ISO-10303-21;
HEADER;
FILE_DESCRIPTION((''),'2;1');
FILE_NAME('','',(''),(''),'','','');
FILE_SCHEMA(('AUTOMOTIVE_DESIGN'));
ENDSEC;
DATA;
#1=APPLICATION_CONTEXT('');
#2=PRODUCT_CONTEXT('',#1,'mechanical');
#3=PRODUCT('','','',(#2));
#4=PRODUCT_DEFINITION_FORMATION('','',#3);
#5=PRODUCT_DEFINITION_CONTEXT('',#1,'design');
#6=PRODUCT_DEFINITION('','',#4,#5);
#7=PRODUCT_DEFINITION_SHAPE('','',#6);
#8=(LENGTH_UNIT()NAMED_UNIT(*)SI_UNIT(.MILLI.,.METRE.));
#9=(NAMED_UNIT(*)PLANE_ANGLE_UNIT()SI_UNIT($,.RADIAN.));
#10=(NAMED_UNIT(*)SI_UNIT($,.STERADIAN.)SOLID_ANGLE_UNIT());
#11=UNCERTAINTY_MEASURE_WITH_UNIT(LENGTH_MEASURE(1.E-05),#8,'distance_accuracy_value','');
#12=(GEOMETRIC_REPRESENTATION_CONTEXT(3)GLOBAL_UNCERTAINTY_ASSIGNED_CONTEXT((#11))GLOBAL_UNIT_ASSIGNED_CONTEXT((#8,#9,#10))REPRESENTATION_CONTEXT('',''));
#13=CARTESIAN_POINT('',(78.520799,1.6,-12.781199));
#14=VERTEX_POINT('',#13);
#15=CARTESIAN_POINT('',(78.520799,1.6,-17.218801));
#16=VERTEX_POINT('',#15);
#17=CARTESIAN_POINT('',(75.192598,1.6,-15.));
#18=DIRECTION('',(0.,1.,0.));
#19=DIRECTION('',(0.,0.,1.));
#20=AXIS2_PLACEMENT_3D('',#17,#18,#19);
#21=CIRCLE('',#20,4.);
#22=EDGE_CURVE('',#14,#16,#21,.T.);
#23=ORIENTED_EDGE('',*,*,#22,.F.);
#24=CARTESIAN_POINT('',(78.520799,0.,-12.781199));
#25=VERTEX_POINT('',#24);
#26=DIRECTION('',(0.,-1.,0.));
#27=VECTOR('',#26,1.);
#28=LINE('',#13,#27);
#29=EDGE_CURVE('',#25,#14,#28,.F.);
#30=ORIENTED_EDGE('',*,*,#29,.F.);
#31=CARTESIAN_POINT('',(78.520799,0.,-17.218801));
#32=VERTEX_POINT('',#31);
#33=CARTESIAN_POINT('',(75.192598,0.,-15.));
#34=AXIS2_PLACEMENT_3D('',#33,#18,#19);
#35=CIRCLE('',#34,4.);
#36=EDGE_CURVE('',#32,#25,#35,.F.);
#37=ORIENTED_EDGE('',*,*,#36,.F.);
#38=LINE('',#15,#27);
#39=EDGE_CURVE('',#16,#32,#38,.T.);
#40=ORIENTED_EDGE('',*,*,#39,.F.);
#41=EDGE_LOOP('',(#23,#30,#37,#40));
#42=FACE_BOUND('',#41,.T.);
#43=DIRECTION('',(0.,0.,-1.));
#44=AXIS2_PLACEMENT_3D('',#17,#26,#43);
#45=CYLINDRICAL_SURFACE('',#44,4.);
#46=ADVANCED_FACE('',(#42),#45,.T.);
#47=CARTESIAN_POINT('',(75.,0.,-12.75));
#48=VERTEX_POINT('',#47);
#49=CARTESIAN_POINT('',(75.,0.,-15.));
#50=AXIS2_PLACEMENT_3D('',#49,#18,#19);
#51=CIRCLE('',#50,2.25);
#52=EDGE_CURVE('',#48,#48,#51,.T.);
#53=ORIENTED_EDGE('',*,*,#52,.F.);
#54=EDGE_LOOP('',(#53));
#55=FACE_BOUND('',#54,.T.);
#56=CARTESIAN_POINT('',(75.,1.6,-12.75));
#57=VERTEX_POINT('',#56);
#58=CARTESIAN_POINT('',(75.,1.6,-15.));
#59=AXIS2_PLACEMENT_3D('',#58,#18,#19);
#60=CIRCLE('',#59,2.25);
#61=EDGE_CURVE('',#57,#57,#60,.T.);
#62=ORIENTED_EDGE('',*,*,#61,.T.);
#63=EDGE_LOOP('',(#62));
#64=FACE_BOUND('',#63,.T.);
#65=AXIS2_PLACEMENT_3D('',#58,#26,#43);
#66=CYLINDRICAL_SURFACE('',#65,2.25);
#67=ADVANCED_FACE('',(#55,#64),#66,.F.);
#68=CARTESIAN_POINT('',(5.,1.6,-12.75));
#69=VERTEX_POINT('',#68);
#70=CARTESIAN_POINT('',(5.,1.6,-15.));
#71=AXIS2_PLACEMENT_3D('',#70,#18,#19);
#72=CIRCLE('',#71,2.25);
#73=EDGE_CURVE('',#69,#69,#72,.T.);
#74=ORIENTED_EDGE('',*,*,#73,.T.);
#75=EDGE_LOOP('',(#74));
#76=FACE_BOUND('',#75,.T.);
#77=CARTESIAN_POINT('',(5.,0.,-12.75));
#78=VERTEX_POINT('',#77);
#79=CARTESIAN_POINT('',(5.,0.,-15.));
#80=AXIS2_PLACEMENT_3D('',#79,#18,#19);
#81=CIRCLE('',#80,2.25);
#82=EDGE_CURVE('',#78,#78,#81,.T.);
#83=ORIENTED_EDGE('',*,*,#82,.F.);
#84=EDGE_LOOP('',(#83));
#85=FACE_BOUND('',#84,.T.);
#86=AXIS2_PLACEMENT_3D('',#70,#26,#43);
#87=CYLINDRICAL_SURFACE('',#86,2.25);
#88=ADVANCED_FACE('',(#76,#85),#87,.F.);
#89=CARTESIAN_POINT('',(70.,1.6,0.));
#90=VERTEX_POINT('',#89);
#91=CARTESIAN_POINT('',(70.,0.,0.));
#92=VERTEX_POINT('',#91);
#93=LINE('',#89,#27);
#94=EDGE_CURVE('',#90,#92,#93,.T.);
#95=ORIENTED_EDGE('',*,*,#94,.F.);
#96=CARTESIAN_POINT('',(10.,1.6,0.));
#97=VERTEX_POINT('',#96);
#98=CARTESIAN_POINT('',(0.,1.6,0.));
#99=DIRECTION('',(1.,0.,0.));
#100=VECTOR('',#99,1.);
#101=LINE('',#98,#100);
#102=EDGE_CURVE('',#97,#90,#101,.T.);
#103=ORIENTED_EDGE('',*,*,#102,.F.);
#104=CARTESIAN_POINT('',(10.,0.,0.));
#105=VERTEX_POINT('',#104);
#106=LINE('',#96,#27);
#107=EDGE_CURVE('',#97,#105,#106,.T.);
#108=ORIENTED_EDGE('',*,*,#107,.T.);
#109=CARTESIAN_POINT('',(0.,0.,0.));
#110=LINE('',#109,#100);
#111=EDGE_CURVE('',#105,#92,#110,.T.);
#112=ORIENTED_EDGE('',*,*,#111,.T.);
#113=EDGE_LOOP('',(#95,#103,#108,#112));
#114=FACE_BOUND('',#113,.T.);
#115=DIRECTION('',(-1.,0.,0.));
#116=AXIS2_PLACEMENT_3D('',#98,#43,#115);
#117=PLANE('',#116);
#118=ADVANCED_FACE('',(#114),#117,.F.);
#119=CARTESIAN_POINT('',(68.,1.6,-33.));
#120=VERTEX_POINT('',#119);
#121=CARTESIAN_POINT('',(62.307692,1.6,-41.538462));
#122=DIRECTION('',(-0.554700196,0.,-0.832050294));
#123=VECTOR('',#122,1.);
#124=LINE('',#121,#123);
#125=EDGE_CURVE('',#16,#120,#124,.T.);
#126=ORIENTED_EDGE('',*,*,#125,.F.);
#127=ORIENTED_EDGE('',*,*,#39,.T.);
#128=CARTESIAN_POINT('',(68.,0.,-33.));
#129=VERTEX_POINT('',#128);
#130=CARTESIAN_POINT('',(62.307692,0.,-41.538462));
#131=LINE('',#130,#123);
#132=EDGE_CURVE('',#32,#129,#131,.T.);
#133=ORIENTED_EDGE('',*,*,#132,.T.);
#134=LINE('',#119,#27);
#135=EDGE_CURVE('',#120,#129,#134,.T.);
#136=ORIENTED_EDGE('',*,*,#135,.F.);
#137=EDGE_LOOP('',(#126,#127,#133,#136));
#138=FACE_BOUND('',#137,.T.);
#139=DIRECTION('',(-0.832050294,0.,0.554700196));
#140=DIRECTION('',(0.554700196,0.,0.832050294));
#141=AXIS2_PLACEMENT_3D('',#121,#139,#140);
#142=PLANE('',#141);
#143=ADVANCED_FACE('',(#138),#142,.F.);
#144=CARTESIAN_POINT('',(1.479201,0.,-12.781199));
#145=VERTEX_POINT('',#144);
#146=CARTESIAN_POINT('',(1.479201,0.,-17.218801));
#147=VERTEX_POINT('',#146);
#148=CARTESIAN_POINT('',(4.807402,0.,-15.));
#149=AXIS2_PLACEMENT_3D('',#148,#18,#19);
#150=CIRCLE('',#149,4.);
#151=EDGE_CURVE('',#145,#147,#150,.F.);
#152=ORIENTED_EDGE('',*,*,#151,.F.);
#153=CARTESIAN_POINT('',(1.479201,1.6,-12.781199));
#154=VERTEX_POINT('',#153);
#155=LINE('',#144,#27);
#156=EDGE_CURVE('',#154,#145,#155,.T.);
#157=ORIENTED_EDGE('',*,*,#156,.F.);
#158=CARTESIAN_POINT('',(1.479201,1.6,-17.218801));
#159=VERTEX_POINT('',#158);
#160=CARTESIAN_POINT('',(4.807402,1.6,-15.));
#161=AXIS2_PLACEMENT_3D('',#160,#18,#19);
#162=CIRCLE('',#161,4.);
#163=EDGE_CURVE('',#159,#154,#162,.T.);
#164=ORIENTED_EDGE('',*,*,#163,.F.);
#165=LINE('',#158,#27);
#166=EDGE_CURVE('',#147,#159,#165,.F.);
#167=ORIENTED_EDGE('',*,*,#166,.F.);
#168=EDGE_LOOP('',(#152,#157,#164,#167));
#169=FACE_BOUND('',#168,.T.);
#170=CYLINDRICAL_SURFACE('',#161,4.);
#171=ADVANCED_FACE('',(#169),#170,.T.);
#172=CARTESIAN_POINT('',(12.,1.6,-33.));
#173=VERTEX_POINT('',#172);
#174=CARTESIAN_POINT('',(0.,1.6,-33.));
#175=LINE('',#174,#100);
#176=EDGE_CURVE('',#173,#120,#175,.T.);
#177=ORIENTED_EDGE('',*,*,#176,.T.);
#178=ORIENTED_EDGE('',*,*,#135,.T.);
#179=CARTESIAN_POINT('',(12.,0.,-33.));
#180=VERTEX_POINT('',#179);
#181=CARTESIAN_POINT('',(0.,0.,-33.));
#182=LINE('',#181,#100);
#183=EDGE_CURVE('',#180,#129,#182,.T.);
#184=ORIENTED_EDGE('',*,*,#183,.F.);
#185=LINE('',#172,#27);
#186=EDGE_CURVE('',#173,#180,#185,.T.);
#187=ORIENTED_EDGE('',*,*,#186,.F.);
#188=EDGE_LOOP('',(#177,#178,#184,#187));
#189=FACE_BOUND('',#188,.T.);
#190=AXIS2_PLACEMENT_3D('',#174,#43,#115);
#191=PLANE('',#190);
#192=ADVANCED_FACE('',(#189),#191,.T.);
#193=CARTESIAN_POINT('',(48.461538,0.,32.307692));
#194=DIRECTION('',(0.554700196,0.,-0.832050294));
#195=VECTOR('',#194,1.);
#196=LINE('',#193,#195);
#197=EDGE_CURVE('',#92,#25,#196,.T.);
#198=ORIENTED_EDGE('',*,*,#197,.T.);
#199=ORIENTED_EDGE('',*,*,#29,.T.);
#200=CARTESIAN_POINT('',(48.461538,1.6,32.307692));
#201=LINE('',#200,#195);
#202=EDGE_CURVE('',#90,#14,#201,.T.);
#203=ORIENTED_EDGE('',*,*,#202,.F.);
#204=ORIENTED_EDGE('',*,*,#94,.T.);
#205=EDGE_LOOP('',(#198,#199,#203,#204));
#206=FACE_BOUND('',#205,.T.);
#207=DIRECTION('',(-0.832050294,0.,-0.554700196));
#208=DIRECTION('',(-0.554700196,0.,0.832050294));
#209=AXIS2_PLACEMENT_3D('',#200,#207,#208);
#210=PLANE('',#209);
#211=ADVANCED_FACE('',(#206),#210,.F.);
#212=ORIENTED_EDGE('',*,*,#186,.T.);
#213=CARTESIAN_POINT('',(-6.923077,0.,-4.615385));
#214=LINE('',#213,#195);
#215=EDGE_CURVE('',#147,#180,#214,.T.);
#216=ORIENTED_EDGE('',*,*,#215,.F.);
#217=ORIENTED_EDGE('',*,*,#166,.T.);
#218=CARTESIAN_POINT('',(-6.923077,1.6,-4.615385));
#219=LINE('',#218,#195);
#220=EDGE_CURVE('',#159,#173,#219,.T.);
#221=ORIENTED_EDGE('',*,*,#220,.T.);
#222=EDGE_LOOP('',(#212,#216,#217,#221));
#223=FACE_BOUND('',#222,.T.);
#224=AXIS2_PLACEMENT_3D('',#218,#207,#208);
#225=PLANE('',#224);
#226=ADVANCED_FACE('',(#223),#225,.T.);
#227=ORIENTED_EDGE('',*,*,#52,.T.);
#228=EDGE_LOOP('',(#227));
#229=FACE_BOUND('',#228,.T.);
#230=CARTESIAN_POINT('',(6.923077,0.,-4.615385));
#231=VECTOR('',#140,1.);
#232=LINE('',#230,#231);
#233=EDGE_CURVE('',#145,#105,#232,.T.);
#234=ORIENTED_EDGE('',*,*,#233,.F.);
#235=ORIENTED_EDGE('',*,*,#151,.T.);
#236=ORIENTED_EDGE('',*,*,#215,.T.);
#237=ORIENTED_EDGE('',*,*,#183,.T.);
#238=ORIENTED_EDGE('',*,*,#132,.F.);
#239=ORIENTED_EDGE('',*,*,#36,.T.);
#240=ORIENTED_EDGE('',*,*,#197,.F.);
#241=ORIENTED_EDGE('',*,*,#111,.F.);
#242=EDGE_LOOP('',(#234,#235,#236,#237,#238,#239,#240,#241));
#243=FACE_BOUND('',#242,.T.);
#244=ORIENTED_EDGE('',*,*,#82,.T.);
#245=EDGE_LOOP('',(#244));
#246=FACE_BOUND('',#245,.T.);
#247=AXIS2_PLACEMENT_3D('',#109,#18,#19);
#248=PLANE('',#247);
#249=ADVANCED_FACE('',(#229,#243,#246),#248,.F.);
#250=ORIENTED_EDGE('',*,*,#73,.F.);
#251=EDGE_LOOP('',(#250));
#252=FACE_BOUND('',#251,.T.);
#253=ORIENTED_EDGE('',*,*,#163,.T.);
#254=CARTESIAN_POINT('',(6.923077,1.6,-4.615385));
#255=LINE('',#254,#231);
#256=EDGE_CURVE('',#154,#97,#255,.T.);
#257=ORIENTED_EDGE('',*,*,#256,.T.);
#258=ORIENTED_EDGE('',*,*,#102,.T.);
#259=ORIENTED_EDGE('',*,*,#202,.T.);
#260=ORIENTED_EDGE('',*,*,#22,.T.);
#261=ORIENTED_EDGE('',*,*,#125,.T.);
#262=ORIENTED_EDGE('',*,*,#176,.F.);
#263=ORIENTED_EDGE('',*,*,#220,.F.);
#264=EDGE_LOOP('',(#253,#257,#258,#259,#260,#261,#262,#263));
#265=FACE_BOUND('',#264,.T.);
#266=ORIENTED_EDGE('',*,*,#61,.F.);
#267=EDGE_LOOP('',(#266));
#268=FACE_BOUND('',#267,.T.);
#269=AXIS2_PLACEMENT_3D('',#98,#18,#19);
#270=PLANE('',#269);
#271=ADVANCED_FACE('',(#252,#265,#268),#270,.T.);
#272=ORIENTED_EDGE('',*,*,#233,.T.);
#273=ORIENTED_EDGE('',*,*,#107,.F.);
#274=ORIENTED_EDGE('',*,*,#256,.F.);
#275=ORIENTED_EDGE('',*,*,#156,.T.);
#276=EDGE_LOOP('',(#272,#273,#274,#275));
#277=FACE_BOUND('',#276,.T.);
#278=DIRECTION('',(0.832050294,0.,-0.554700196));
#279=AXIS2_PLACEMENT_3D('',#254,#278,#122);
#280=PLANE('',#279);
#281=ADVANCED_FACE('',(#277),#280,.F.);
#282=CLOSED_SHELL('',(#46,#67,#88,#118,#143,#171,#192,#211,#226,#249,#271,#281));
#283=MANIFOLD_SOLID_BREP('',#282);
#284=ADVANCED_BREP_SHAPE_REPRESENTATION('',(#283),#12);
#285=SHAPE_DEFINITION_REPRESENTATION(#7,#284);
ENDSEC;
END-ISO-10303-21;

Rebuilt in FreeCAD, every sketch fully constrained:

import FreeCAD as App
import Part
import Sketcher
from FreeCAD import Vector
Q = App.Units.Quantity


def edges_at(feature, points):
    """Names of the edges that pass closest to the given points."""
    edges = feature.Shape.Edges
    near = lambda p: min(range(len(edges)), key=lambda i: edges[i].distToShape(Part.Vertex(*p))[0])
    return sorted({f"Edge{near(p) + 1}" for p in points})

doc = App.newDocument("Part")
body = doc.addObject("PartDesign::Body", "Body")

# Sketch on XZ plane
sketch1 = doc.addObject("Sketcher::SketchObject", "Sketch")
body.addObject(sketch1)
sketch1.AttachmentSupport = (doc.XZ_Plane, [""])
sketch1.MapMode = "FlatFace"
sketch1.addGeometry([
    Part.LineSegment(Vector(12, -33, 0), Vector(0, -15, 0)),  # 0
    Part.LineSegment(Vector(0, -15, 0), Vector(10, 0, 0)),  # 1
    Part.LineSegment(Vector(10, 0, 0), Vector(70, 0, 0)),  # 2
    Part.LineSegment(Vector(70, 0, 0), Vector(80, -15, 0)),  # 3
    Part.LineSegment(Vector(80, -15, 0), Vector(68, -33, 0)),  # 4
    Part.LineSegment(Vector(68, -33, 0), Vector(12, -33, 0)),  # 5
    Part.Circle(Vector(5, -15, 0), Vector(0, 0, 1), 2.25),  # 6
    Part.Circle(Vector(75, -15, 0), Vector(0, 0, 1), 2.25),  # 7
], False)
sketch1.addConstraint([
    Sketcher.Constraint("Coincident", 0, 2, 1, 1),
    Sketcher.Constraint("Coincident", 1, 2, 2, 1),
    Sketcher.Constraint("Coincident", 2, 2, 3, 1),
    Sketcher.Constraint("Coincident", 3, 2, 4, 1),
    Sketcher.Constraint("Coincident", 4, 2, 5, 1),
    Sketcher.Constraint("Coincident", 5, 2, 0, 1),
    Sketcher.Constraint("Horizontal", 2),
    Sketcher.Constraint("Horizontal", 5),
    Sketcher.Constraint("Equal", 6, 7),
    Sketcher.Constraint("PointOnObject", 0, 2, -2),
    Sketcher.Constraint("PointOnObject", 1, 2, -1),
    Sketcher.Constraint("Parallel", 0, 3),
    Sketcher.Constraint("Parallel", 1, 4),
    Sketcher.Constraint("Horizontal", 6, 3, 7, 3),
    Sketcher.Constraint("Horizontal", 7, 3, 0, 2),
    Sketcher.Constraint("Horizontal", 0, 2, 3, 2),
    Sketcher.Constraint("Equal", 1, 3),
    Sketcher.Constraint("Diameter", 6, Q("4.5 mm")),
    Sketcher.Constraint("DistanceX", 2, 1, 2, 2, Q("60 mm")),
    Sketcher.Constraint("DistanceX", 5, 2, 5, 1, Q("56 mm")),
    Sketcher.Constraint("DistanceX", -1, 1, 6, 3, Q("5 mm")),
    Sketcher.Constraint("DistanceY", 6, 3, -1, 1, Q("15 mm")),
    Sketcher.Constraint("DistanceX", -1, 1, 7, 3, Q("75 mm")),
    Sketcher.Constraint("DistanceX", -1, 1, 1, 2, Q("10 mm")),
])
pad1 = doc.addObject("PartDesign::Pad", "Pad")
body.addObject(pad1)
pad1.Profile = sketch1
pad1.Length = 1.6
pad1.Reversed = True
doc.recompute()

fillet = doc.addObject("PartDesign::Fillet", "Fillet")
body.addObject(fillet)
fillet.Base = (pad1, edges_at(pad1, [(0, 0.8, -15), (80, 0.8, -15)]))
fillet.Radius = 4

doc.recompute()
